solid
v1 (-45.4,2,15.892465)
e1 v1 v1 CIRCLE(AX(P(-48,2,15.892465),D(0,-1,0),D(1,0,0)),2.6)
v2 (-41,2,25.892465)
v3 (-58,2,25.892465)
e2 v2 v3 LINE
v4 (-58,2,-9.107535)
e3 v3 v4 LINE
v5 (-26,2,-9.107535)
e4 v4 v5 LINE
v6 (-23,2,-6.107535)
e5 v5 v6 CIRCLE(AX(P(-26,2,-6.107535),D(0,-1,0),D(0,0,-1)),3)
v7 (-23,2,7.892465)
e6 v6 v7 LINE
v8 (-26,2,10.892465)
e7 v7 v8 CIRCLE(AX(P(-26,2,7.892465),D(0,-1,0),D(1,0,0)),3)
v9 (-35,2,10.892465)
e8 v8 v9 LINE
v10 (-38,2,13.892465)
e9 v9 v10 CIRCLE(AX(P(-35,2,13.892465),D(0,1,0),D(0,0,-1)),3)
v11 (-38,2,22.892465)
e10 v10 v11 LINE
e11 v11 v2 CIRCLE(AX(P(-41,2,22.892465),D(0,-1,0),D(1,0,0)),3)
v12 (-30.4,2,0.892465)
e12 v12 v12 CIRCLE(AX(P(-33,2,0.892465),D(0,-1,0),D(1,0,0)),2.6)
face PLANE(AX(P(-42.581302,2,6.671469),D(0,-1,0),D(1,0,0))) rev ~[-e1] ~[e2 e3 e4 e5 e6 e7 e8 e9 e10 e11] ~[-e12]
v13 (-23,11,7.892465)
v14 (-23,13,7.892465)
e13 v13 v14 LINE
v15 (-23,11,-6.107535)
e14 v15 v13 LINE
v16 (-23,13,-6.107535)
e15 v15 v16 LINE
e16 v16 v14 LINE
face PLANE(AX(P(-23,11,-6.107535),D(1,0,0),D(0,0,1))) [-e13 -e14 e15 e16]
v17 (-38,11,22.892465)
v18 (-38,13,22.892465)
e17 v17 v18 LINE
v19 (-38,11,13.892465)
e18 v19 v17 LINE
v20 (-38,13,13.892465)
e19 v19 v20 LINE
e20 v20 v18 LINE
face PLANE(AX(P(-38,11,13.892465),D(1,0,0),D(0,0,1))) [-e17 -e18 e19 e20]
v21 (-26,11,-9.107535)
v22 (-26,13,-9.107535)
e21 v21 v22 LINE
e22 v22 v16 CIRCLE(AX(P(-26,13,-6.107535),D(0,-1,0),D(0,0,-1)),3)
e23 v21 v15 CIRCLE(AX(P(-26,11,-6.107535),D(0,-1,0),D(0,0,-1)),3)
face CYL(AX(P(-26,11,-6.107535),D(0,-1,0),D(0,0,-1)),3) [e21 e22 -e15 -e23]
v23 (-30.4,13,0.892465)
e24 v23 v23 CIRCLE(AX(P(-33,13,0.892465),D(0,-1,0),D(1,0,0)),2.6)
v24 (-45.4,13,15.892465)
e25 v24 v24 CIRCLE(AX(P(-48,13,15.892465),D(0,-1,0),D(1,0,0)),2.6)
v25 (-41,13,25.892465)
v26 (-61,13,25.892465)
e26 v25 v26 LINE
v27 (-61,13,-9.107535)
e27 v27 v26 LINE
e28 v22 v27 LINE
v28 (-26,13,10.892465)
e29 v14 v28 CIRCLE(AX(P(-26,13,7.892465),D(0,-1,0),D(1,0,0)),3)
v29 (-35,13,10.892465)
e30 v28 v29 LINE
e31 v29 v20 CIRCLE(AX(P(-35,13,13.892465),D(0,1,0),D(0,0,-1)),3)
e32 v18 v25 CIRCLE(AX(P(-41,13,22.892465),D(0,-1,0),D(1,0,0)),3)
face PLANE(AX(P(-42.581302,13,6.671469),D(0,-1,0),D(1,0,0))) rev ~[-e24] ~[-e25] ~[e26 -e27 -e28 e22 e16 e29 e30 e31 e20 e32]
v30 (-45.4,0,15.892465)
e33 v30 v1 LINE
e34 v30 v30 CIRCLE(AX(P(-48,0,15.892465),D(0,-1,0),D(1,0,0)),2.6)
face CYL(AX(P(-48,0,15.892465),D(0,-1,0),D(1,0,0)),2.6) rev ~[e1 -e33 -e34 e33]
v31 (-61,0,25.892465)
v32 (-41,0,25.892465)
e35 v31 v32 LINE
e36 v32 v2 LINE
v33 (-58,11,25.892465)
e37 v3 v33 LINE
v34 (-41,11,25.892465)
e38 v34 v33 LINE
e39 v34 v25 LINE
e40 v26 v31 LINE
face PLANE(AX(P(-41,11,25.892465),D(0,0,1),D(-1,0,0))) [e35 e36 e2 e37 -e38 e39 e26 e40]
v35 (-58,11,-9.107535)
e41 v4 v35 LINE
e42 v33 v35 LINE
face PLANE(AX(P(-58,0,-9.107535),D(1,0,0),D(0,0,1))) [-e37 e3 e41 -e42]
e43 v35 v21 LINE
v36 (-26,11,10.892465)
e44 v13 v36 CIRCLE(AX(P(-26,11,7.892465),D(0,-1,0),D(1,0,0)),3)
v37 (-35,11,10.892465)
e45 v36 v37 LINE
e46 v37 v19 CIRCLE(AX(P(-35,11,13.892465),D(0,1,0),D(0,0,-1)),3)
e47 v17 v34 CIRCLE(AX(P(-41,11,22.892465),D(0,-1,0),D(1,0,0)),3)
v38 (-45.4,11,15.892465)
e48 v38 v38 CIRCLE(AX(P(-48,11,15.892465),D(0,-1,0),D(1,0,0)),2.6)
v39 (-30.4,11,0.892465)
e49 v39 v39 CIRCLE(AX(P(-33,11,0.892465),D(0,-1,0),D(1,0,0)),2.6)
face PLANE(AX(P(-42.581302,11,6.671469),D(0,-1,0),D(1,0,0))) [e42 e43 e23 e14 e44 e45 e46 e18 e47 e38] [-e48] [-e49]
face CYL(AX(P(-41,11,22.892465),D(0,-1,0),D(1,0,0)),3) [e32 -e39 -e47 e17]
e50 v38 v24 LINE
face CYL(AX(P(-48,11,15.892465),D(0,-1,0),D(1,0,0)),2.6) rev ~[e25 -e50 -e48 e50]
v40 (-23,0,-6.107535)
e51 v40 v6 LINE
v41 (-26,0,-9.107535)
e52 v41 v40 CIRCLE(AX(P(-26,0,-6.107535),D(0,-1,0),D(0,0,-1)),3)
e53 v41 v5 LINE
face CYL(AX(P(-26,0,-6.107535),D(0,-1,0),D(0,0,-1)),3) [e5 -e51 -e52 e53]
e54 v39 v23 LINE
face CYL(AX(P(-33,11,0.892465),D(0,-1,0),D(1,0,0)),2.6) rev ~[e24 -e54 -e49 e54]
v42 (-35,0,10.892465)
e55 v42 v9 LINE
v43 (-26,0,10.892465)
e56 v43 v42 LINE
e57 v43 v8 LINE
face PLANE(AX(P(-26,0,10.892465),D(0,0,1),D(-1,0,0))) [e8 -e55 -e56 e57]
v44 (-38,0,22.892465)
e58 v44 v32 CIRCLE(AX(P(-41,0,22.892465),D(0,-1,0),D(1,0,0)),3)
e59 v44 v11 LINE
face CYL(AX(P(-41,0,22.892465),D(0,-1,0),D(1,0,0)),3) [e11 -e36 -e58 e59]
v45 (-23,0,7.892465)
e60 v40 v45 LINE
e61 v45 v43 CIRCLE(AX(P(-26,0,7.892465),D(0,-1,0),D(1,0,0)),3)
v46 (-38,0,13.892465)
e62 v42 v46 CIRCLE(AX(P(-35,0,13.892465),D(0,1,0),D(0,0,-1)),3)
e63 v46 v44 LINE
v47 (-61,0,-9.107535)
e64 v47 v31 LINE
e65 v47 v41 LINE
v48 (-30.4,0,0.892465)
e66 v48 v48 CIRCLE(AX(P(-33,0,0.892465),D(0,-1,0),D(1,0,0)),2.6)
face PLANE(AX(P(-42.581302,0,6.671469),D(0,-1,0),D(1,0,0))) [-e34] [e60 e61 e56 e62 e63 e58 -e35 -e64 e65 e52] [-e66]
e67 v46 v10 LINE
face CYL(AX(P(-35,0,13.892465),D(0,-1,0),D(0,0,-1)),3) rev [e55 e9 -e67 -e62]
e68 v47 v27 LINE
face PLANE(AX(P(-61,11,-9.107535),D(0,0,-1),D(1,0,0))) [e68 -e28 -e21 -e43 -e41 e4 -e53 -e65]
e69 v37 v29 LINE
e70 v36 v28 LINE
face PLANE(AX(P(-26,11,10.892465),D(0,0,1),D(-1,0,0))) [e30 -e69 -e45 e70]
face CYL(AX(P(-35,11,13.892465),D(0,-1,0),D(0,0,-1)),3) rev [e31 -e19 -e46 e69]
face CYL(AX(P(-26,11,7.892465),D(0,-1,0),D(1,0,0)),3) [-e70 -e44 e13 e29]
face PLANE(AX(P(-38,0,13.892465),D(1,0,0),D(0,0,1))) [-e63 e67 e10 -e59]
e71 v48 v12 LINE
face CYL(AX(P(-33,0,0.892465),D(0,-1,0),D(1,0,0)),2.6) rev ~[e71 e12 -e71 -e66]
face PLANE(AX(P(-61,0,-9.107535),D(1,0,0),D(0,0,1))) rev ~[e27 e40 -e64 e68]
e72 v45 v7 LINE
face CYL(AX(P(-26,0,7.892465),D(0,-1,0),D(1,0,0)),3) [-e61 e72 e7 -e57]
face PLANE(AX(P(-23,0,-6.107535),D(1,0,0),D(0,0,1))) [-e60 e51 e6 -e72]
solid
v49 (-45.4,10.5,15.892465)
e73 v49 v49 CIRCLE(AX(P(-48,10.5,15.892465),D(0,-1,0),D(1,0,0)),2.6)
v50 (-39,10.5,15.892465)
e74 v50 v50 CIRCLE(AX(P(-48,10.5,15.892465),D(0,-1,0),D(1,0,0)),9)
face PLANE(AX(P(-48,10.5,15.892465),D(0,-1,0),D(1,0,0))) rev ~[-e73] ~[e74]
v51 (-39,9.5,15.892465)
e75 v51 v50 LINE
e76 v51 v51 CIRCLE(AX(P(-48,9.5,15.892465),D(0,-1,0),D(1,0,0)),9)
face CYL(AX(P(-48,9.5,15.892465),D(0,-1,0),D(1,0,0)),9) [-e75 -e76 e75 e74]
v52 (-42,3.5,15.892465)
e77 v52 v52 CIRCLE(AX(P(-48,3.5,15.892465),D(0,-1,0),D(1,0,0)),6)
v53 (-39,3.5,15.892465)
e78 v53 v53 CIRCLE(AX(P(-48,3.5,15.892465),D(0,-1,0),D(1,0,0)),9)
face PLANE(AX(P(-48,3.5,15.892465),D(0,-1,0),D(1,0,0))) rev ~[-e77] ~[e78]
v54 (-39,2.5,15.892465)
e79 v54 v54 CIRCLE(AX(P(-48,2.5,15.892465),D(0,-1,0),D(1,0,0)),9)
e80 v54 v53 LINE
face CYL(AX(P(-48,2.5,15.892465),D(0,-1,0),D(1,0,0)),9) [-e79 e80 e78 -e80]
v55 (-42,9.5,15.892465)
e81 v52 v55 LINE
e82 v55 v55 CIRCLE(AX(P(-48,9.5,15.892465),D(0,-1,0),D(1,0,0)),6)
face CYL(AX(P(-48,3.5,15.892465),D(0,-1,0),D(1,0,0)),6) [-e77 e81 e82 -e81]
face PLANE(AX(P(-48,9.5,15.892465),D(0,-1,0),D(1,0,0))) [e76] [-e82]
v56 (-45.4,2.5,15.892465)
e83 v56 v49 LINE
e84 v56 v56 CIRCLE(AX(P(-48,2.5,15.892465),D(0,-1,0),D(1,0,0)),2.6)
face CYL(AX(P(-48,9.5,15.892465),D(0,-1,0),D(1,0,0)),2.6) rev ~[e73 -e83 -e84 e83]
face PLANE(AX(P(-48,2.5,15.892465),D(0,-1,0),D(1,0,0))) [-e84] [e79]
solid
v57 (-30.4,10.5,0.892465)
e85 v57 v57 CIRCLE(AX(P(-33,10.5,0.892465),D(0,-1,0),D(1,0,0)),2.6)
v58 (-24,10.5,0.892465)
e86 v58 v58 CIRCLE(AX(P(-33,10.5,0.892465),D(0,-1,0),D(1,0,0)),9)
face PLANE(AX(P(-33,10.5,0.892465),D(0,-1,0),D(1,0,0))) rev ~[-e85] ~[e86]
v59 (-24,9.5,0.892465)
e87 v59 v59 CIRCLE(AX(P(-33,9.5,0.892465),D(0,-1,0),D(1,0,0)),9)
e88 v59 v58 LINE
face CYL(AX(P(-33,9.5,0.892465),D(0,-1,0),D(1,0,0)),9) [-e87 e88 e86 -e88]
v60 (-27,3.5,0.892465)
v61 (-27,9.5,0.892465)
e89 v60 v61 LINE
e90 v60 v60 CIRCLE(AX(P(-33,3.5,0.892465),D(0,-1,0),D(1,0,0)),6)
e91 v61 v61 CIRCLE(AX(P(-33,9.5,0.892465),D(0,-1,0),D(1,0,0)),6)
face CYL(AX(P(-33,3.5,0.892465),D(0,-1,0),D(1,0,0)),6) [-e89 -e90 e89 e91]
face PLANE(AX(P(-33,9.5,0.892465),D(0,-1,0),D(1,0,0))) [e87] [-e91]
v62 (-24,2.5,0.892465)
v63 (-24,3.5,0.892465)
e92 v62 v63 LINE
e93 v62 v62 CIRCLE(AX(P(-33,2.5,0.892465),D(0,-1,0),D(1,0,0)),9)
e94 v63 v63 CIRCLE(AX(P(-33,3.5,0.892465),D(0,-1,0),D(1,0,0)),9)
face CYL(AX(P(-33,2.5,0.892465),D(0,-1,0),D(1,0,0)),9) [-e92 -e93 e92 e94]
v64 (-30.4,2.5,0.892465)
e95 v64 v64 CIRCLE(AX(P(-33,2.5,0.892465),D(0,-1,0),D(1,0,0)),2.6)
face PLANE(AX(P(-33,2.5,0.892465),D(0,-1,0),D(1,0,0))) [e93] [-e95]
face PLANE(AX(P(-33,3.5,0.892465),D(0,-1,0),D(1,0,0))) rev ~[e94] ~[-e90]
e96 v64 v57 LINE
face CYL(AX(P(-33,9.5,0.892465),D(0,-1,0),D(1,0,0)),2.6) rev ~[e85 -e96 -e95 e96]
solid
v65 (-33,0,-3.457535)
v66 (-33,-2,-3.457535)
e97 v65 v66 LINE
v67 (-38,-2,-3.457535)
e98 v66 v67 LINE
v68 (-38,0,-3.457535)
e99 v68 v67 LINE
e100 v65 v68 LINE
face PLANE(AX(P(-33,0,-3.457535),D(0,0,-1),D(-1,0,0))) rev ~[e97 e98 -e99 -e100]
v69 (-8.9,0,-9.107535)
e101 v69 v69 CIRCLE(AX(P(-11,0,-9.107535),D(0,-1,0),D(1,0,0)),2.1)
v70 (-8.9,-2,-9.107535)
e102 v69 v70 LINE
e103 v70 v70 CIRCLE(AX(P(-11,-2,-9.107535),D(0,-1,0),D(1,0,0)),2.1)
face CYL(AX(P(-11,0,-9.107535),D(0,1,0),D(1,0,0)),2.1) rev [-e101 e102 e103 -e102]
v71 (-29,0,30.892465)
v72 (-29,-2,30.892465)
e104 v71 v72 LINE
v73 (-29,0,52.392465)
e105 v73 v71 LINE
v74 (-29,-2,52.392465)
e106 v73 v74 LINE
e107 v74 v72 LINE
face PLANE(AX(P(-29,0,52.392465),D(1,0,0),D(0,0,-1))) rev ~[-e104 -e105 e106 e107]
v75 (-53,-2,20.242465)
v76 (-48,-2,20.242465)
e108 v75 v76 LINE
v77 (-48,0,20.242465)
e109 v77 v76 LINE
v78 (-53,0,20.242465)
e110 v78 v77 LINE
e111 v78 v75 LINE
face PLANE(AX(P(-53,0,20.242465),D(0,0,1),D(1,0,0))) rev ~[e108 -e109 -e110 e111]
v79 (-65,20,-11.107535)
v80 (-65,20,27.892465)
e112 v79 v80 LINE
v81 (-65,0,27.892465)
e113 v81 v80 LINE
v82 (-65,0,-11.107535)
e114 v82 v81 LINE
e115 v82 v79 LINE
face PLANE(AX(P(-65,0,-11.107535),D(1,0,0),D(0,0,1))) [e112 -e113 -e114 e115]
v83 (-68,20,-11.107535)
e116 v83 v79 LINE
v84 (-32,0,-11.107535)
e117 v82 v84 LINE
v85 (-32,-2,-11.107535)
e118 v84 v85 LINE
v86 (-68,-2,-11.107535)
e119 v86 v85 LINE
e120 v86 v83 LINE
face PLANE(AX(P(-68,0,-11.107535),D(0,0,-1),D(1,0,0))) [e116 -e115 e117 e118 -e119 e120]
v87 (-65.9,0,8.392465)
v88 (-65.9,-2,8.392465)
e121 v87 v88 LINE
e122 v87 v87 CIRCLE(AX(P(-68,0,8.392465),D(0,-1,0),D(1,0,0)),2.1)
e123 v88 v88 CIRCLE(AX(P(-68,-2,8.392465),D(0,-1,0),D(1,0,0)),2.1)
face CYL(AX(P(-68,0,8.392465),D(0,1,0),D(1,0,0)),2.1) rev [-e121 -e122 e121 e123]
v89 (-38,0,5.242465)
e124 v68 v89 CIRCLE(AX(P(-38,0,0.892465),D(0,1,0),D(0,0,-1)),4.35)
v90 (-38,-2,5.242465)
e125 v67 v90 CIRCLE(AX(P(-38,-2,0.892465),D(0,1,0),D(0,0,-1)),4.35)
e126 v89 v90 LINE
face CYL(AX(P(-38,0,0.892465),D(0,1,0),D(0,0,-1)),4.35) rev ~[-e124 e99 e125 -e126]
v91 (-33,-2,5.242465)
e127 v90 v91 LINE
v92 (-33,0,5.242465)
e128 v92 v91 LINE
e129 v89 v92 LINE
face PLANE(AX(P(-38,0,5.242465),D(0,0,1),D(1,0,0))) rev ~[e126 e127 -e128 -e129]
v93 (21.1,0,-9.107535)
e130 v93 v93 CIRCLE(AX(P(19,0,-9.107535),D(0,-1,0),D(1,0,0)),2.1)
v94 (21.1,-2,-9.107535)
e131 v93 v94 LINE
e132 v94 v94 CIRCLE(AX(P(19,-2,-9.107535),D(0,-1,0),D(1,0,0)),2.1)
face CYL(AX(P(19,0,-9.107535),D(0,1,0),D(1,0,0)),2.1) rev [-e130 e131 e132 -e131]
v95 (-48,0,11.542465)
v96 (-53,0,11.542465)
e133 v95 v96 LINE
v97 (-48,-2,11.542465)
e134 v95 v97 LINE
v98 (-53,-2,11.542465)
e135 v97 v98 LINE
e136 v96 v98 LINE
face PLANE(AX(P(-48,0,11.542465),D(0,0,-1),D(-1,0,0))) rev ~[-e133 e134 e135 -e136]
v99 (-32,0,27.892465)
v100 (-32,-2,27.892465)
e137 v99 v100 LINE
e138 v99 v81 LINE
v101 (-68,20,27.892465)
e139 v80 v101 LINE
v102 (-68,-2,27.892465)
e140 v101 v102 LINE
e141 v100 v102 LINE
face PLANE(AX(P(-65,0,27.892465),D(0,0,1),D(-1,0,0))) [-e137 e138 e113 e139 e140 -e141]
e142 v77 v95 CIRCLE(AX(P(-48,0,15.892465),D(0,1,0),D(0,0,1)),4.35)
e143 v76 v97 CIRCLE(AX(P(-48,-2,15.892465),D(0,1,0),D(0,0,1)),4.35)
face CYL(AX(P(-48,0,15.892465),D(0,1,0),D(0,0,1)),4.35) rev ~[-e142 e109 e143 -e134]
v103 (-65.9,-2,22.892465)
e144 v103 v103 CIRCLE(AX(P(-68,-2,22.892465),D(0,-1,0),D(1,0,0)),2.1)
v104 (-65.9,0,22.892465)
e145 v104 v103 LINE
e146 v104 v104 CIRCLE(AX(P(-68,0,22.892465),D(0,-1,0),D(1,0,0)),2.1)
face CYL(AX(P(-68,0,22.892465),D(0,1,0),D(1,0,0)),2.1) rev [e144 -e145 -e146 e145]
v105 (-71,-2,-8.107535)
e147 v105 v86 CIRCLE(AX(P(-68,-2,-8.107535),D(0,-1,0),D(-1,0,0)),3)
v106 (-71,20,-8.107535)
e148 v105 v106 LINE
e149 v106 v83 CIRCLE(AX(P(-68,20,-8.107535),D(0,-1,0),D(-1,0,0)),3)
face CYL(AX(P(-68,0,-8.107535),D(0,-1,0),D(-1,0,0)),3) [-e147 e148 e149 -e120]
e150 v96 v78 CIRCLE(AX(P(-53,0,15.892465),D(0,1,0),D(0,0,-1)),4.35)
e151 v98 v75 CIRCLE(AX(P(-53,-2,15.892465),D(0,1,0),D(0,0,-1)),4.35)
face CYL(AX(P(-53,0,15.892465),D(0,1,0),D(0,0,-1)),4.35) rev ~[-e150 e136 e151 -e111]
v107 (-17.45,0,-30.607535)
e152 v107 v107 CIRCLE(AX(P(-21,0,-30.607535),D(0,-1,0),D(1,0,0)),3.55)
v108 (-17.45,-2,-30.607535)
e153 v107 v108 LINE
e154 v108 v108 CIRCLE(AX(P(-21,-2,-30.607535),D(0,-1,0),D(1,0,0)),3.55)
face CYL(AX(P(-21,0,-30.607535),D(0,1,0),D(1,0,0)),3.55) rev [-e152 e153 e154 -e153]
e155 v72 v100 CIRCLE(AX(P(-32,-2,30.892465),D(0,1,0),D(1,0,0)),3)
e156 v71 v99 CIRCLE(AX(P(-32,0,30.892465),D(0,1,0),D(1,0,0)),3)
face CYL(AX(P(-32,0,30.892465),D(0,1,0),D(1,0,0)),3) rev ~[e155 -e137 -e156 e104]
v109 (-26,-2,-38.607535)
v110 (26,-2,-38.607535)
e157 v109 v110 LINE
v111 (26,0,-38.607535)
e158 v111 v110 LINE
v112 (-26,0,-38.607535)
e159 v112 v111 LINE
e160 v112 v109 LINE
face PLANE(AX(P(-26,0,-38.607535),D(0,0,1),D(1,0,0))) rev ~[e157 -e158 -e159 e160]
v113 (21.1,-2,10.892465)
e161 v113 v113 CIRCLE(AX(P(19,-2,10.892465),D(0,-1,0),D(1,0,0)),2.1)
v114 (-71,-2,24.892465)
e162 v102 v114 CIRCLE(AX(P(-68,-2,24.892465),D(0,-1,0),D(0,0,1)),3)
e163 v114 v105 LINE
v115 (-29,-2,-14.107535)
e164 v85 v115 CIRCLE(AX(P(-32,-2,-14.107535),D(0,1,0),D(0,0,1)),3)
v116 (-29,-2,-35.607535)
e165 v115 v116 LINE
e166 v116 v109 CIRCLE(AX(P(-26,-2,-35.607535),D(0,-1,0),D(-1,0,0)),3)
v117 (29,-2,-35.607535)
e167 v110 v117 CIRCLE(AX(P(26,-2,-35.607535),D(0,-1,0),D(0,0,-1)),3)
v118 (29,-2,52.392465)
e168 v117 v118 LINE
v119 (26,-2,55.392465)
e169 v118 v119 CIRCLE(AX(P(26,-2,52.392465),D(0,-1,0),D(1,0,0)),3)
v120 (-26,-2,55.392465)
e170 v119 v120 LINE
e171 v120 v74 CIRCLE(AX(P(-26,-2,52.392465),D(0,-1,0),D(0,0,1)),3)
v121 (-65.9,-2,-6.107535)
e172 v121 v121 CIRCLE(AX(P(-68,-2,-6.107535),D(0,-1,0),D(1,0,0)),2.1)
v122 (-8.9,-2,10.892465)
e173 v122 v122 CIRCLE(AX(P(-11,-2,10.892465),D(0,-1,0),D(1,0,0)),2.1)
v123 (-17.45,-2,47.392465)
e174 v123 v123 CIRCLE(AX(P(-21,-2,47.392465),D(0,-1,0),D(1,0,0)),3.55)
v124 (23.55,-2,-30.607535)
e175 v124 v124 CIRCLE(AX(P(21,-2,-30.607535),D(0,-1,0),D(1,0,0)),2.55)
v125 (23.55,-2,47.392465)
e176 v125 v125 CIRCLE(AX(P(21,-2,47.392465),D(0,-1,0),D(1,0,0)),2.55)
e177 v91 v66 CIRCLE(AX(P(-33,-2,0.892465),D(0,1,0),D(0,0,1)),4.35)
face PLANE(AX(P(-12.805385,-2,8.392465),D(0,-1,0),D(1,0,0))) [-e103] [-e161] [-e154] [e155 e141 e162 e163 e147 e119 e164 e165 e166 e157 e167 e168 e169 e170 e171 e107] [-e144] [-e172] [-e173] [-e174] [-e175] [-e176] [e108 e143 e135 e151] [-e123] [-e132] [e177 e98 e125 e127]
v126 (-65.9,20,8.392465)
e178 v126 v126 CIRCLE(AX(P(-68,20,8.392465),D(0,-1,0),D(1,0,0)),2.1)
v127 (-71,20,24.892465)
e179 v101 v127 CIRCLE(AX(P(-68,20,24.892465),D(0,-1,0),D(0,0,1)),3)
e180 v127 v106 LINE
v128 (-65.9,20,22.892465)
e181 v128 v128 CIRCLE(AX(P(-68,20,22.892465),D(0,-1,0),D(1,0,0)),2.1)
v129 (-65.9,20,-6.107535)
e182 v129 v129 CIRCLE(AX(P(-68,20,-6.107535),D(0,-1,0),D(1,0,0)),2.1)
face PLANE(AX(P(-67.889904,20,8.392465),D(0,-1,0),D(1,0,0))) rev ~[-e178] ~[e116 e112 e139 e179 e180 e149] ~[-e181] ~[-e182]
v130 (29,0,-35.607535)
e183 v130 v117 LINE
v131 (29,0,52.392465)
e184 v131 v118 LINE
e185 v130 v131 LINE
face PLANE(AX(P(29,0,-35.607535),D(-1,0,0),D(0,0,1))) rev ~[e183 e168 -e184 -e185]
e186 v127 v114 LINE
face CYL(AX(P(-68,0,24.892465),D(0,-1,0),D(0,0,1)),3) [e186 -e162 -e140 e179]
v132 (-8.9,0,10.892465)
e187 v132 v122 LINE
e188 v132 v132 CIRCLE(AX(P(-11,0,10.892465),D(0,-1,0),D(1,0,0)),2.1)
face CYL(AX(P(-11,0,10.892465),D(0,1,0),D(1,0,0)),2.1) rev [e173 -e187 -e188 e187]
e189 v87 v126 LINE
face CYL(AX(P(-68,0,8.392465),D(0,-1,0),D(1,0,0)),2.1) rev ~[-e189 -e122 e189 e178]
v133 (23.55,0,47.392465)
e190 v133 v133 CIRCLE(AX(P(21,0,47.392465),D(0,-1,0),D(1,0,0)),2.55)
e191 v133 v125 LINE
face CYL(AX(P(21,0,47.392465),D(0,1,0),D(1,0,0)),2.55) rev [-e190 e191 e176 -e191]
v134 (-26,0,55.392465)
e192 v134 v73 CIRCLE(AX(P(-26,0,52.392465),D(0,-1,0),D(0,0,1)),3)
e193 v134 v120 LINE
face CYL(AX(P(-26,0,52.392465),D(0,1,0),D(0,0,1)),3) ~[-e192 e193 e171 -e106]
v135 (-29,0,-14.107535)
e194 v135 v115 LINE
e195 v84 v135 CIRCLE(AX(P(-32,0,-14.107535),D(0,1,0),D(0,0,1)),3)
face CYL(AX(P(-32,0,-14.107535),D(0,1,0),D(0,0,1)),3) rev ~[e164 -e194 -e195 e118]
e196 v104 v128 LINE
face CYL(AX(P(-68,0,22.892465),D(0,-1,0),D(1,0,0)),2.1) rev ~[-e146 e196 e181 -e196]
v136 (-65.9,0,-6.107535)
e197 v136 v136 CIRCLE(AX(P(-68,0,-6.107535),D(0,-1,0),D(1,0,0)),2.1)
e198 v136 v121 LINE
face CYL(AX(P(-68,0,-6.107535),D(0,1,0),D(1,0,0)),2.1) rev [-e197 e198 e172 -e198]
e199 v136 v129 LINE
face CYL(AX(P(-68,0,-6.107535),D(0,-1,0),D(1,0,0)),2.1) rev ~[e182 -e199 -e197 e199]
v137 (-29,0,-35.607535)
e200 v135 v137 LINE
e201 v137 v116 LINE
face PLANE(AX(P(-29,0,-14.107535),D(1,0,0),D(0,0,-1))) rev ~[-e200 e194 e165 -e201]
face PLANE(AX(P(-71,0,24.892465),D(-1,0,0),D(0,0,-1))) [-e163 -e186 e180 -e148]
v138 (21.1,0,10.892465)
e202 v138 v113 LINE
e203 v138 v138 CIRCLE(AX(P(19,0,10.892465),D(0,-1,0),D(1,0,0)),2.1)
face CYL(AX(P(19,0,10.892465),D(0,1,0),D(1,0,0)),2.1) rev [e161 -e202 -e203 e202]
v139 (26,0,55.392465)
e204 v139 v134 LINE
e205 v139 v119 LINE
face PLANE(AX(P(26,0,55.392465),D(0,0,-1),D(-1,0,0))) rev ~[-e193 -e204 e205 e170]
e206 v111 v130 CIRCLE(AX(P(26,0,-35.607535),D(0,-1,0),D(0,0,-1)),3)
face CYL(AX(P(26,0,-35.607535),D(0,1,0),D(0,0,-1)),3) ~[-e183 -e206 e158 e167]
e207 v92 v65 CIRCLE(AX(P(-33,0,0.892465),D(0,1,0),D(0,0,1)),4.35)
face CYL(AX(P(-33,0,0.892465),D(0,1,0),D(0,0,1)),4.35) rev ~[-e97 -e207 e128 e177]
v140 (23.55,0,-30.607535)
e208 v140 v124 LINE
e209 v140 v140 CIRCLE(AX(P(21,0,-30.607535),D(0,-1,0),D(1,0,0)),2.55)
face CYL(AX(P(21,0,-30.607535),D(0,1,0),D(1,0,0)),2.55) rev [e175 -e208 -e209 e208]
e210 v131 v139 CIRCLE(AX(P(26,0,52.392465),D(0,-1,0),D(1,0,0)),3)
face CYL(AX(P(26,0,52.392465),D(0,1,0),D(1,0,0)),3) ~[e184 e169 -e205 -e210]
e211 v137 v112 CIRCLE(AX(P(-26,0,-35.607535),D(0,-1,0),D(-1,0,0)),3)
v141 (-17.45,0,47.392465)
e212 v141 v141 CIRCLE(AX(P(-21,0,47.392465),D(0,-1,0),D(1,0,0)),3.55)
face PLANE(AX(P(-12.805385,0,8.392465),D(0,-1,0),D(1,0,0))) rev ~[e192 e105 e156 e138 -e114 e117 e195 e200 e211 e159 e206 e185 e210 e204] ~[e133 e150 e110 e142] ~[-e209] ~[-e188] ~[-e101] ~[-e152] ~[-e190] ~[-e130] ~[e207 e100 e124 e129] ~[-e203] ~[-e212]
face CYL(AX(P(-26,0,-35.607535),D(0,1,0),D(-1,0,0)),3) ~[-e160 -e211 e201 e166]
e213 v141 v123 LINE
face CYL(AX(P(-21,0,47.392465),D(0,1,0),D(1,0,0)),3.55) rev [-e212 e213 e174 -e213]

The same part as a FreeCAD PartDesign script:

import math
import FreeCAD as App
import Part
import Sketcher
from FreeCAD import Vector
Q = App.Units.Quantity

doc = App.newDocument("Part")
body = doc.addObject("PartDesign::Body", "Body")

# Sketch on XZ plane
sketch1 = doc.addObject("Sketcher::SketchObject", "Sketch")
body.addObject(sketch1)
sketch1.AttachmentSupport = (doc.XZ_Plane, [""])
sketch1.MapMode = "FlatFace"
sketch1.AttachmentOffset = App.Placement(Vector(0, 0, -2.5), App.Rotation())
sketch1.addGeometry([
    Part.Circle(Vector(-48, 15.9, 0), Vector(0, 0, 1), 9),
    Part.Circle(Vector(-48, 15.9, 0), Vector(0, 0, 1), 2.6),
], False)
sketch1.addConstraint([
    Sketcher.Constraint("Coincident", 1, 3, 0, 3),
    Sketcher.Constraint("Diameter", 0, Q("18 mm")),
    Sketcher.Constraint("Diameter", 1, Q("5.2 mm")),
    Sketcher.Constraint("DistanceX", 0, 3, -1, 1, Q("48 mm")),
    Sketcher.Constraint("DistanceY", -1, 1, 0, 3, Q("15.892465 mm")),
])
pad1 = doc.addObject("PartDesign::Pad", "Pad")
body.addObject(pad1)
pad1.Profile = sketch1
pad1.Length = 1
pad1.Reversed = True

# Sketch on XZ plane
sketch2 = doc.addObject("Sketcher::SketchObject", "Sketch001")
body.addObject(sketch2)
sketch2.AttachmentSupport = (doc.XZ_Plane, [""])
sketch2.MapMode = "FlatFace"
sketch2.AttachmentOffset = App.Placement(Vector(0, 0, -3.5), App.Rotation())
sketch2.addGeometry([
    Part.Circle(Vector(-48, 15.9, 0), Vector(0, 0, 1), 6),
    Part.Circle(Vector(-48, 15.9, 0), Vector(0, 0, 1), 2.6),
], False)
sketch2.addConstraint([
    Sketcher.Constraint("Coincident", 1, 3, 0, 3),
    Sketcher.Constraint("Diameter", 0, Q("12 mm")),
    Sketcher.Constraint("Diameter", 1, Q("5.2 mm")),
    Sketcher.Constraint("DistanceX", 0, 3, -1, 1, Q("48 mm")),
    Sketcher.Constraint("DistanceY", -1, 1, 0, 3, Q("15.892465 mm")),
])
pad2 = doc.addObject("PartDesign::Pad", "Pad001")
body.addObject(pad2)
pad2.Profile = sketch2
pad2.Length = 6
pad2.Reversed = True

# Sketch on XZ plane
sketch3 = doc.addObject("Sketcher::SketchObject", "Sketch002")
body.addObject(sketch3)
sketch3.AttachmentSupport = (doc.XZ_Plane, [""])
sketch3.MapMode = "FlatFace"
sketch3.AttachmentOffset = App.Placement(Vector(0, 0, -9.5), App.Rotation())
sketch3.addGeometry([
    Part.Circle(Vector(-48, 15.9, 0), Vector(0, 0, 1), 9),
    Part.Circle(Vector(-48, 15.9, 0), Vector(0, 0, 1), 2.6),
], False)
sketch3.addConstraint([
    Sketcher.Constraint("Coincident", 1, 3, 0, 3),
    Sketcher.Constraint("Diameter", 0, Q("18 mm")),
    Sketcher.Constraint("Diameter", 1, Q("5.2 mm")),
    Sketcher.Constraint("DistanceX", 0, 3, -1, 1, Q("48 mm")),
    Sketcher.Constraint("DistanceY", -1, 1, 0, 3, Q("15.892465 mm")),
])
pad3 = doc.addObject("PartDesign::Pad", "Pad002")
body.addObject(pad3)
pad3.Profile = sketch3
pad3.Length = 1
pad3.Reversed = True
body2 = doc.addObject("PartDesign::Body", "Body001")

# Sketch on XZ plane
sketch4 = doc.addObject("Sketcher::SketchObject", "Sketch003")
body2.addObject(sketch4)
sketch4.AttachmentSupport = (doc.getObject("XZ_Plane001"), [""])
sketch4.MapMode = "FlatFace"
sketch4.AttachmentOffset = App.Placement(Vector(0, 0, -2.5), App.Rotation())
sketch4.addGeometry([
    Part.Circle(Vector(-33, 0.9, 0), Vector(0, 0, 1), 9),
    Part.Circle(Vector(-33, 0.9, 0), Vector(0, 0, 1), 2.6),
], False)
sketch4.addConstraint([
    Sketcher.Constraint("Coincident", 1, 3, 0, 3),
    Sketcher.Constraint("Diameter", 0, Q("18 mm")),
    Sketcher.Constraint("Diameter", 1, Q("5.2 mm")),
    Sketcher.Constraint("DistanceX", 0, 3, -1, 1, Q("33 mm")),
    Sketcher.Constraint("DistanceY", -1, 1, 0, 3, Q("0.892465 mm")),
])
pad4 = doc.addObject("PartDesign::Pad", "Pad003")
body2.addObject(pad4)
pad4.Profile = sketch4
pad4.Length = 1
pad4.Reversed = True

# Sketch on XZ plane
sketch5 = doc.addObject("Sketcher::SketchObject", "Sketch004")
body2.addObject(sketch5)
sketch5.AttachmentSupport = (doc.getObject("XZ_Plane001"), [""])
sketch5.MapMode = "FlatFace"
sketch5.AttachmentOffset = App.Placement(Vector(0, 0, -3.5), App.Rotation())
sketch5.addGeometry([
    Part.Circle(Vector(-33, 0.9, 0), Vector(0, 0, 1), 6),
    Part.Circle(Vector(-33, 0.9, 0), Vector(0, 0, 1), 2.6),
], False)
sketch5.addConstraint([
    Sketcher.Constraint("Coincident", 1, 3, 0, 3),
    Sketcher.Constraint("Diameter", 0, Q("12 mm")),
    Sketcher.Constraint("Diameter", 1, Q("5.2 mm")),
    Sketcher.Constraint("DistanceX", 0, 3, -1, 1, Q("33 mm")),
    Sketcher.Constraint("DistanceY", -1, 1, 0, 3, Q("0.892465 mm")),
])
pad5 = doc.addObject("PartDesign::Pad", "Pad004")
body2.addObject(pad5)
pad5.Profile = sketch5
pad5.Length = 6
pad5.Reversed = True

# Sketch on XZ plane
sketch6 = doc.addObject("Sketcher::SketchObject", "Sketch005")
body2.addObject(sketch6)
sketch6.AttachmentSupport = (doc.getObject("XZ_Plane001"), [""])
sketch6.MapMode = "FlatFace"
sketch6.AttachmentOffset = App.Placement(Vector(0, 0, -9.5), App.Rotation())
sketch6.addGeometry([
    Part.Circle(Vector(-33, 0.9, 0), Vector(0, 0, 1), 9),
    Part.Circle(Vector(-33, 0.9, 0), Vector(0, 0, 1), 2.6),
], False)
sketch6.addConstraint([
    Sketcher.Constraint("Coincident", 1, 3, 0, 3),
    Sketcher.Constraint("Diameter", 0, Q("18 mm")),
    Sketcher.Constraint("Diameter", 1, Q("5.2 mm")),
    Sketcher.Constraint("DistanceX", 0, 3, -1, 1, Q("33 mm")),
    Sketcher.Constraint("DistanceY", -1, 1, 0, 3, Q("0.892465 mm")),
])
pad6 = doc.addObject("PartDesign::Pad", "Pad005")
body2.addObject(pad6)
pad6.Profile = sketch6
pad6.Length = 1
pad6.Reversed = True
body3 = doc.addObject("PartDesign::Body", "Body002")

# Sketch on XZ plane
sketch7 = doc.addObject("Sketcher::SketchObject", "Sketch006")
body3.addObject(sketch7)
sketch7.AttachmentSupport = (doc.getObject("XZ_Plane002"), [""])
sketch7.MapMode = "FlatFace"
sketch7.addGeometry([
    Part.ArcOfCircle(Part.Circle(Vector(26, 52.4, 0), Vector(0, 0, 1), 3), math.radians(0), math.radians(90)),  # 0
    Part.LineSegment(Vector(26, 55.4, 0), Vector(-26, 55.4, 0)),  # 1
    Part.ArcOfCircle(Part.Circle(Vector(-26, 52.4, 0), Vector(0, 0, 1), 3), math.radians(90), math.radians(180)),  # 2
    Part.LineSegment(Vector(-29, 52.4, 0), Vector(-29, 30.9, 0)),  # 3
    Part.ArcOfCircle(Part.Circle(Vector(-32, 30.9, 0), Vector(0, 0, 1), 3), math.radians(-90), math.radians(0)),  # 4
    Part.LineSegment(Vector(-32, 27.9, 0), Vector(-68, 27.9, 0)),  # 5
    Part.ArcOfCircle(Part.Circle(Vector(-68, 24.9, 0), Vector(0, 0, 1), 3), math.radians(90), math.radians(180)),  # 6
    Part.LineSegment(Vector(-71, 24.9, 0), Vector(-71, -8.1, 0)),  # 7
    Part.ArcOfCircle(Part.Circle(Vector(-68, -8.1, 0), Vector(0, 0, 1), 3), math.radians(180), math.radians(270)),  # 8
    Part.LineSegment(Vector(-68, -11.1, 0), Vector(-32, -11.1, 0)),  # 9
    Part.ArcOfCircle(Part.Circle(Vector(-32, -14.1, 0), Vector(0, 0, 1), 3), math.radians(0), math.radians(90)),  # 10
    Part.LineSegment(Vector(-29, -14.1, 0), Vector(-29, -35.6, 0)),  # 11
    Part.ArcOfCircle(Part.Circle(Vector(-26, -35.6, 0), Vector(0, 0, 1), 3), math.radians(180), math.radians(270)),  # 12
    Part.LineSegment(Vector(-26, -38.6, 0), Vector(26, -38.6, 0)),  # 13
    Part.ArcOfCircle(Part.Circle(Vector(26, -35.6, 0), Vector(0, 0, 1), 3), math.radians(-90), math.radians(0)),  # 14
    Part.LineSegment(Vector(29, -35.6, 0), Vector(29, 52.4, 0)),  # 15
    Part.Circle(Vector(-68, -6.1, 0), Vector(0, 0, 1), 2.1),  # 16
    Part.Circle(Vector(-68, 8.4, 0), Vector(0, 0, 1), 2.1),  # 17
    Part.LineSegment(Vector(-33, -3.5, 0), Vector(-38, -3.5, 0)),  # 18
    Part.ArcOfCircle(Part.Circle(Vector(-38, 0.9, 0), Vector(0, 0, 1), 4.3), math.radians(90), math.radians(270)),  # 19
    Part.LineSegment(Vector(-38, 5.2, 0), Vector(-33, 5.2, 0)),  # 20
    Part.ArcOfCircle(Part.Circle(Vector(-33, 0.9, 0), Vector(0, 0, 1), 4.3), math.radians(-90), math.radians(90)),  # 21
    Part.Circle(Vector(-21, -30.6, 0), Vector(0, 0, 1), 3.5),  # 22
    Part.Circle(Vector(21, -30.6, 0), Vector(0, 0, 1), 2.5),  # 23
    Part.Circle(Vector(-11, -9.1, 0), Vector(0, 0, 1), 2.1),  # 24
    Part.Circle(Vector(19, -9.1, 0), Vector(0, 0, 1), 2.1),  # 25
    Part.LineSegment(Vector(-48, 11.5, 0), Vector(-53, 11.5, 0)),  # 26
    Part.ArcOfCircle(Part.Circle(Vector(-53, 15.9, 0), Vector(0, 0, 1), 4.3), math.radians(90), math.radians(270)),  # 27
    Part.LineSegment(Vector(-53, 20.2, 0), Vector(-48, 20.2, 0)),  # 28
    Part.ArcOfCircle(Part.Circle(Vector(-48, 15.9, 0), Vector(0, 0, 1), 4.3), math.radians(-90), math.radians(90)),  # 29
    Part.Circle(Vector(-68, 22.9, 0), Vector(0, 0, 1), 2.1),  # 30
    Part.Circle(Vector(-11, 10.9, 0), Vector(0, 0, 1), 2.1),  # 31
    Part.Circle(Vector(19, 10.9, 0), Vector(0, 0, 1), 2.1),  # 32
    Part.Circle(Vector(-21, 47.4, 0), Vector(0, 0, 1), 3.5),  # 33
    Part.Circle(Vector(21, 47.4, 0), Vector(0, 0, 1), 2.5),  # 34
], False)
sketch7.addConstraint([
    Sketcher.Constraint("Tangent", 0, 2, 1, 1),
    Sketcher.Constraint("Tangent", 1, 2, 2, 1),
    Sketcher.Constraint("Tangent", 2, 2, 3, 1),
    Sketcher.Constraint("Tangent", 3, 2, 4, 2),
    Sketcher.Constraint("Tangent", 4, 1, 5, 1),
    Sketcher.Constraint("Tangent", 5, 2, 6, 1),
    Sketcher.Constraint("Tangent", 6, 2, 7, 1),
    Sketcher.Constraint("Tangent", 7, 2, 8, 1),
    Sketcher.Constraint("Tangent", 8, 2, 9, 1),
    Sketcher.Constraint("Tangent", 9, 2, 10, 2),
    Sketcher.Constraint("Tangent", 10, 1, 11, 1),
    Sketcher.Constraint("Tangent", 11, 2, 12, 1),
    Sketcher.Constraint("Tangent", 12, 2, 13, 1),
    Sketcher.Constraint("Tangent", 13, 2, 14, 1),
    Sketcher.Constraint("Tangent", 14, 2, 15, 1),
    Sketcher.Constraint("Tangent", 15, 2, 0, 1),
    Sketcher.Constraint("Tangent", 18, 2, 19, 2),
    Sketcher.Constraint("Tangent", 19, 1, 20, 1),
    Sketcher.Constraint("Tangent", 20, 2, 21, 2),
    Sketcher.Constraint("Tangent", 21, 1, 18, 1),
    Sketcher.Constraint("Tangent", 26, 2, 27, 2),
    Sketcher.Constraint("Tangent", 27, 1, 28, 1),
    Sketcher.Constraint("Tangent", 28, 2, 29, 2),
    Sketcher.Constraint("Tangent", 29, 1, 26, 1),
    Sketcher.Constraint("Horizontal", 1),
    Sketcher.Constraint("Vertical", 3),
    Sketcher.Constraint("Horizontal", 5),
    Sketcher.Constraint("Vertical", 7),
    Sketcher.Constraint("Horizontal", 9),
    Sketcher.Constraint("Vertical", 11),
    Sketcher.Constraint("Horizontal", 13),
    Sketcher.Constraint("Vertical", 15),
    Sketcher.Constraint("Horizontal", 18),
    Sketcher.Constraint("Horizontal", 20),
    Sketcher.Constraint("Horizontal", 26),
    Sketcher.Constraint("Horizontal", 28),
    Sketcher.Constraint("Equal", 0, 2),
    Sketcher.Constraint("Equal", 2, 4),
    Sketcher.Constraint("Equal", 4, 6),
    Sketcher.Constraint("Equal", 6, 8),
    Sketcher.Constraint("Equal", 8, 10),
    Sketcher.Constraint("Equal", 10, 12),
    Sketcher.Constraint("Equal", 12, 14),
    Sketcher.Constraint("Equal", 16, 17),
    Sketcher.Constraint("Equal", 17, 24),
    Sketcher.Constraint("Equal", 24, 25),
    Sketcher.Constraint("Equal", 21, 27),
    Sketcher.Constraint("Equal", 25, 30),
    Sketcher.Constraint("Equal", 30, 31),
    Sketcher.Constraint("Equal", 31, 32),
    Sketcher.Constraint("Equal", 22, 33),
    Sketcher.Constraint("Equal", 23, 34),
    Sketcher.Constraint("Symmetric", 22, 3, 23, 3, -2),
    Sketcher.Constraint("Symmetric", 33, 3, 34, 3, -2),
    Sketcher.Constraint("Horizontal", 24, 3, 25, 3),
    Sketcher.Constraint("Horizontal", 31, 3, 32, 3),
    Sketcher.Constraint("Vertical", 4, 3, 10, 3),
    Sketcher.Constraint("Vertical", 8, 3, 16, 3),
    Sketcher.Constraint("Vertical", 16, 3, 17, 3),
    Sketcher.Constraint("Vertical", 17, 3, 30, 3),
    Sketcher.Constraint("Vertical", 24, 3, 31, 3),
    Sketcher.Constraint("Vertical", 25, 3, 32, 3),
    Sketcher.Constraint("Vertical", 22, 3, 33, 3),
    Sketcher.Constraint("Equal", 20, 26),
    Sketcher.Constraint("Equal", 3, 11),
    Sketcher.Constraint("Radius", 0, Q("3 mm")),
    Sketcher.Constraint("Diameter", 16, Q("4.2 mm")),
    Sketcher.Constraint("Diameter", 22, Q("7.1 mm")),
    Sketcher.Constraint("Diameter", 23, Q("5.1 mm")),
    Sketcher.Constraint("DistanceX", 1, 2, 1, 1, Q("52 mm")),
    Sketcher.Constraint("DistanceX", 5, 2, 5, 1, Q("36 mm")),
    Sketcher.Constraint("DistanceX", 18, 2, 18, 1, Q("5 mm")),
    Sketcher.Constraint("DistanceY", 7, 2, 7, 1, Q("33 mm")),
    Sketcher.Constraint("DistanceY", 15, 1, 15, 2, Q("88 mm")),
    Sketcher.Constraint("Radius", 19, Q("4.35 mm")),
    Sketcher.Constraint("DistanceX", -1, 1, 0, 3, Q("26 mm")),
    Sketcher.Constraint("DistanceX", 19, 3, -1, 1, Q("38 mm")),
    Sketcher.Constraint("DistanceX", 22, 3, -1, 1, Q("21 mm")),
    Sketcher.Constraint("DistanceX", 24, 3, -1, 1, Q("11 mm")),
    Sketcher.Constraint("DistanceX", -1, 1, 25, 3, Q("19 mm")),
    Sketcher.Constraint("DistanceX", 27, 3, -1, 1, Q("53 mm")),
    Sketcher.Constraint("DistanceY", 8, 3, 16, 3, Q("2 mm")),
    Sketcher.Constraint("DistanceY", 10, 3, 19, 3, Q("15 mm")),
    Sketcher.Constraint("DistanceY", 12, 3, 22, 3, Q("5 mm")),
    Sketcher.Constraint("DistanceY", 10, 3, 24, 3, Q("5 mm")),
    Sketcher.Constraint("DistanceY", 27, 3, 6, 3, Q("9 mm")),
    Sketcher.Constraint("DistanceY", 30, 3, 6, 3, Q("2 mm")),
    Sketcher.Constraint("DistanceY", 24, 3, 31, 3, Q("20 mm")),
    Sketcher.Constraint("DistanceY", 33, 3, 2, 3, Q("5 mm")),
    Sketcher.Constraint("DistanceY", 16, 3, 17, 3, Q("14.5 mm")),
    Sketcher.Constraint("DistanceY", -1, 1, 0, 3, Q("52.392465 mm")),
])
pad7 = doc.addObject("PartDesign::Pad", "Pad006")
body3.addObject(pad7)
pad7.Profile = sketch7
pad7.Length = 2

# Sketch on XZ plane
sketch8 = doc.addObject("Sketcher::SketchObject", "Sketch007")
body3.addObject(sketch8)
sketch8.AttachmentSupport = (doc.getObject("XZ_Plane002"), [""])
sketch8.MapMode = "FlatFace"
sketch8.addGeometry([
    Part.LineSegment(Vector(-65, -11.1, 0), Vector(-65, 27.9, 0)),  # 0
    Part.LineSegment(Vector(-65, 27.9, 0), Vector(-68, 27.9, 0)),  # 1
    Part.ArcOfCircle(Part.Circle(Vector(-68, 24.9, 0), Vector(0, 0, 1), 3), math.radians(90), math.radians(180)),  # 2
    Part.LineSegment(Vector(-71, 24.9, 0), Vector(-71, -8.1, 0)),  # 3
    Part.ArcOfCircle(Part.Circle(Vector(-68, -8.1, 0), Vector(0, 0, 1), 3), math.radians(180), math.radians(270)),  # 4
    Part.LineSegment(Vector(-68, -11.1, 0), Vector(-65, -11.1, 0)),  # 5
    Part.Circle(Vector(-68, -6.1, 0), Vector(0, 0, 1), 2.1),  # 6
    Part.Circle(Vector(-68, 8.4, 0), Vector(0, 0, 1), 2.1),  # 7
    Part.Circle(Vector(-68, 22.9, 0), Vector(0, 0, 1), 2.1),  # 8
], False)
sketch8.addConstraint([
    Sketcher.Constraint("Coincident", 0, 2, 1, 1),
    Sketcher.Constraint("Tangent", 1, 2, 2, 1),
    Sketcher.Constraint("Tangent", 2, 2, 3, 1),
    Sketcher.Constraint("Tangent", 3, 2, 4, 1),
    Sketcher.Constraint("Tangent", 4, 2, 5, 1),
    Sketcher.Constraint("Coincident", 5, 2, 0, 1),
    Sketcher.Constraint("Vertical", 0),
    Sketcher.Constraint("Horizontal", 1),
    Sketcher.Constraint("Vertical", 3),
    Sketcher.Constraint("Horizontal", 5),
    Sketcher.Constraint("Equal", 2, 4),
    Sketcher.Constraint("Equal", 6, 7),
    Sketcher.Constraint("Equal", 7, 8),
    Sketcher.Constraint("Vertical", 4, 3, 6, 3),
    Sketcher.Constraint("Vertical", 6, 3, 7, 3),
    Sketcher.Constraint("Vertical", 7, 3, 8, 3),
    Sketcher.Constraint("Radius", 2, Q("3 mm")),
    Sketcher.Constraint("Diameter", 6, Q("4.2 mm")),
    Sketcher.Constraint("DistanceX", 1, 2, 1, 1, Q("3 mm")),
    Sketcher.Constraint("DistanceY", 0, 1, 0, 2, Q("39 mm")),
    Sketcher.Constraint("DistanceX", 2, 3, -1, 1, Q("68 mm")),
    Sketcher.Constraint("DistanceY", 4, 3, 6, 3, Q("2 mm")),
    Sketcher.Constraint("DistanceY", 8, 3, 2, 3, Q("2 mm")),
    Sketcher.Constraint("DistanceY", 6, 3, 7, 3, Q("14.5 mm")),
    Sketcher.Constraint("DistanceY", -1, 1, 2, 3, Q("24.892465 mm")),
])
pad8 = doc.addObject("PartDesign::Pad", "Pad007")
body3.addObject(pad8)
pad8.Profile = sketch8
pad8.Length = 20
pad8.Reversed = True
body4 = doc.addObject("PartDesign::Body", "Body003")

# Sketch on XZ plane
sketch9 = doc.addObject("Sketcher::SketchObject", "Sketch008")
body4.addObject(sketch9)
sketch9.AttachmentSupport = (doc.getObject("XZ_Plane003"), [""])
sketch9.MapMode = "FlatFace"
sketch9.addGeometry([
    Part.LineSegment(Vector(-61, 25.9, 0), Vector(-61, -9.1, 0)),
    Part.LineSegment(Vector(-61, -9.1, 0), Vector(-58, -9.1, 0)),
    Part.LineSegment(Vector(-58, -9.1, 0), Vector(-58, 25.9, 0)),
    Part.LineSegment(Vector(-58, 25.9, 0), Vector(-61, 25.9, 0)),
], False)
sketch9.addConstraint([
    Sketcher.Constraint("Coincident", 0, 2, 1, 1),
    Sketcher.Constraint("Coincident", 1, 2, 2, 1),
    Sketcher.Constraint("Coincident", 2, 2, 3, 1),
    Sketcher.Constraint("Coincident", 3, 2, 0, 1),
    Sketcher.Constraint("Vertical", 0),
    Sketcher.Constraint("Horizontal", 1),
    Sketcher.Constraint("Vertical", 2),
    Sketcher.Constraint("Horizontal", 3),
    Sketcher.Constraint("DistanceX", 1, 1, 1, 2, Q("3 mm")),
    Sketcher.Constraint("DistanceY", 0, 2, 0, 1, Q("35 mm")),
    Sketcher.Constraint("DistanceX", 0, 2, -1, 1, Q("61 mm")),
    Sketcher.Constraint("DistanceY", 0, 2, -1, 1, Q("9.107535 mm")),
])
pad9 = doc.addObject("PartDesign::Pad", "Pad008")
body4.addObject(pad9)
pad9.Profile = sketch9
pad9.Length = 13
pad9.Reversed = True

# Sketch on XZ plane
sketch10 = doc.addObject("Sketcher::SketchObject", "Sketch009")
body4.addObject(sketch10)
sketch10.AttachmentSupport = (doc.getObject("XZ_Plane003"), [""])
sketch10.MapMode = "FlatFace"
sketch10.addGeometry([
    Part.LineSegment(Vector(-41, 25.9, 0), Vector(-61, 25.9, 0)),  # 0
    Part.LineSegment(Vector(-61, 25.9, 0), Vector(-61, -9.1, 0)),  # 1
    Part.LineSegment(Vector(-61, -9.1, 0), Vector(-26, -9.1, 0)),  # 2
    Part.ArcOfCircle(Part.Circle(Vector(-26, -6.1, 0), Vector(0, 0, 1), 3), math.radians(-90), math.radians(0)),  # 3
    Part.LineSegment(Vector(-23, -6.1, 0), Vector(-23, 7.9, 0)),  # 4
    Part.ArcOfCircle(Part.Circle(Vector(-26, 7.9, 0), Vector(0, 0, 1), 3), math.radians(0), math.radians(90)),  # 5
    Part.LineSegment(Vector(-26, 10.9, 0), Vector(-35, 10.9, 0)),  # 6
    Part.ArcOfCircle(Part.Circle(Vector(-35, 13.9, 0), Vector(0, 0, 1), 3), math.radians(180), math.radians(270)),  # 7
    Part.LineSegment(Vector(-38, 13.9, 0), Vector(-38, 22.9, 0)),  # 8
    Part.ArcOfCircle(Part.Circle(Vector(-41, 22.9, 0), Vector(0, 0, 1), 3), math.radians(0), math.radians(90)),  # 9
    Part.Circle(Vector(-33, 0.9, 0), Vector(0, 0, 1), 2.6),  # 10
    Part.Circle(Vector(-48, 15.9, 0), Vector(0, 0, 1), 2.6),  # 11
], False)
sketch10.addConstraint([
    Sketcher.Constraint("Coincident", 0, 2, 1, 1),
    Sketcher.Constraint("Coincident", 1, 2, 2, 1),
    Sketcher.Constraint("Tangent", 2, 2, 3, 1),
    Sketcher.Constraint("Tangent", 3, 2, 4, 1),
    Sketcher.Constraint("Tangent", 4, 2, 5, 1),
    Sketcher.Constraint("Tangent", 5, 2, 6, 1),
    Sketcher.Constraint("Tangent", 6, 2, 7, 2),
    Sketcher.Constraint("Tangent", 7, 1, 8, 1),
    Sketcher.Constraint("Tangent", 8, 2, 9, 1),
    Sketcher.Constraint("Tangent", 9, 2, 0, 1),
    Sketcher.Constraint("Horizontal", 0),
    Sketcher.Constraint("Vertical", 1),
    Sketcher.Constraint("Horizontal", 2),
    Sketcher.Constraint("Vertical", 4),
    Sketcher.Constraint("Horizontal", 6),
    Sketcher.Constraint("Vertical", 8),
    Sketcher.Constraint("Equal", 3, 5),
    Sketcher.Constraint("Equal", 5, 7),
    Sketcher.Constraint("Equal", 7, 9),
    Sketcher.Constraint("Equal", 10, 11),
    Sketcher.Constraint("Equal", 2, 1),
    Sketcher.Constraint("Equal", 6, 8),
    Sketcher.Constraint("Radius", 3, Q("3 mm")),
    Sketcher.Constraint("Diameter", 10, Q("5.2 mm")),
    Sketcher.Constraint("DistanceX", 0, 2, 0, 1, Q("20 mm")),
    Sketcher.Constraint("DistanceX", 2, 1, 2, 2, Q("35 mm")),
    Sketcher.Constraint("DistanceX", 3, 3, -1, 1, Q("26 mm")),
    Sketcher.Constraint("DistanceX", 10, 3, -1, 1, Q("33 mm")),
    Sketcher.Constraint("DistanceX", 11, 3, -1, 1, Q("48 mm")),
    Sketcher.Constraint("DistanceY", 3, 3, 10, 3, Q("7 mm")),
    Sketcher.Constraint("DistanceY", 11, 3, 9, 3, Q("7 mm")),
    Sketcher.Constraint("DistanceY", 3, 3, -1, 1, Q("6.107535 mm")),
])
pad10 = doc.addObject("PartDesign::Pad", "Pad009")
body4.addObject(pad10)
pad10.Profile = sketch10
pad10.Length = 2
pad10.Reversed = True

# Sketch on XZ plane
sketch11 = doc.addObject("Sketcher::SketchObject", "Sketch010")
body4.addObject(sketch11)
sketch11.AttachmentSupport = (doc.getObject("XZ_Plane003"), [""])
sketch11.MapMode = "FlatFace"
sketch11.AttachmentOffset = App.Placement(Vector(0, 0, -11), App.Rotation())
sketch11.addGeometry([
    Part.LineSegment(Vector(-41, 25.9, 0), Vector(-61, 25.9, 0)),  # 0
    Part.LineSegment(Vector(-61, 25.9, 0), Vector(-61, -9.1, 0)),  # 1
    Part.LineSegment(Vector(-61, -9.1, 0), Vector(-26, -9.1, 0)),  # 2
    Part.ArcOfCircle(Part.Circle(Vector(-26, -6.1, 0), Vector(0, 0, 1), 3), math.radians(-90), math.radians(0)),  # 3
    Part.LineSegment(Vector(-23, -6.1, 0), Vector(-23, 7.9, 0)),  # 4
    Part.ArcOfCircle(Part.Circle(Vector(-26, 7.9, 0), Vector(0, 0, 1), 3), math.radians(0), math.radians(90)),  # 5
    Part.LineSegment(Vector(-26, 10.9, 0), Vector(-35, 10.9, 0)),  # 6
    Part.ArcOfCircle(Part.Circle(Vector(-35, 13.9, 0), Vector(0, 0, 1), 3), math.radians(180), math.radians(270)),  # 7
    Part.LineSegment(Vector(-38, 13.9, 0), Vector(-38, 22.9, 0)),  # 8
    Part.ArcOfCircle(Part.Circle(Vector(-41, 22.9, 0), Vector(0, 0, 1), 3), math.radians(0), math.radians(90)),  # 9
    Part.Circle(Vector(-33, 0.9, 0), Vector(0, 0, 1), 2.6),  # 10
    Part.Circle(Vector(-48, 15.9, 0), Vector(0, 0, 1), 2.6),  # 11
], False)
sketch11.addConstraint([
    Sketcher.Constraint("Coincident", 0, 2, 1, 1),
    Sketcher.Constraint("Coincident", 1, 2, 2, 1),
    Sketcher.Constraint("Tangent", 2, 2, 3, 1),
    Sketcher.Constraint("Tangent", 3, 2, 4, 1),
    Sketcher.Constraint("Tangent", 4, 2, 5, 1),
    Sketcher.Constraint("Tangent", 5, 2, 6, 1),
    Sketcher.Constraint("Tangent", 6, 2, 7, 2),
    Sketcher.Constraint("Tangent", 7, 1, 8, 1),
    Sketcher.Constraint("Tangent", 8, 2, 9, 1),
    Sketcher.Constraint("Tangent", 9, 2, 0, 1),
    Sketcher.Constraint("Horizontal", 0),
    Sketcher.Constraint("Vertical", 1),
    Sketcher.Constraint("Horizontal", 2),
    Sketcher.Constraint("Vertical", 4),
    Sketcher.Constraint("Horizontal", 6),
    Sketcher.Constraint("Vertical", 8),
    Sketcher.Constraint("Equal", 3, 5),
    Sketcher.Constraint("Equal", 5, 7),
    Sketcher.Constraint("Equal", 7, 9),
    Sketcher.Constraint("Equal", 10, 11),
    Sketcher.Constraint("Equal", 2, 1),
    Sketcher.Constraint("Equal", 6, 8),
    Sketcher.Constraint("Radius", 3, Q("3 mm")),
    Sketcher.Constraint("Diameter", 10, Q("5.2 mm")),
    Sketcher.Constraint("DistanceX", 0, 2, 0, 1, Q("20 mm")),
    Sketcher.Constraint("DistanceX", 2, 1, 2, 2, Q("35 mm")),
    Sketcher.Constraint("DistanceX", 3, 3, -1, 1, Q("26 mm")),
    Sketcher.Constraint("DistanceX", 10, 3, -1, 1, Q("33 mm")),
    Sketcher.Constraint("DistanceX", 11, 3, -1, 1, Q("48 mm")),
    Sketcher.Constraint("DistanceY", 3, 3, 10, 3, Q("7 mm")),
    Sketcher.Constraint("DistanceY", 11, 3, 9, 3, Q("7 mm")),
    Sketcher.Constraint("DistanceY", 3, 3, -1, 1, Q("6.107535 mm")),
])
pad11 = doc.addObject("PartDesign::Pad", "Pad010")
body4.addObject(pad11)
pad11.Profile = sketch11
pad11.Length = 2
pad11.Reversed = True

doc.recompute()
